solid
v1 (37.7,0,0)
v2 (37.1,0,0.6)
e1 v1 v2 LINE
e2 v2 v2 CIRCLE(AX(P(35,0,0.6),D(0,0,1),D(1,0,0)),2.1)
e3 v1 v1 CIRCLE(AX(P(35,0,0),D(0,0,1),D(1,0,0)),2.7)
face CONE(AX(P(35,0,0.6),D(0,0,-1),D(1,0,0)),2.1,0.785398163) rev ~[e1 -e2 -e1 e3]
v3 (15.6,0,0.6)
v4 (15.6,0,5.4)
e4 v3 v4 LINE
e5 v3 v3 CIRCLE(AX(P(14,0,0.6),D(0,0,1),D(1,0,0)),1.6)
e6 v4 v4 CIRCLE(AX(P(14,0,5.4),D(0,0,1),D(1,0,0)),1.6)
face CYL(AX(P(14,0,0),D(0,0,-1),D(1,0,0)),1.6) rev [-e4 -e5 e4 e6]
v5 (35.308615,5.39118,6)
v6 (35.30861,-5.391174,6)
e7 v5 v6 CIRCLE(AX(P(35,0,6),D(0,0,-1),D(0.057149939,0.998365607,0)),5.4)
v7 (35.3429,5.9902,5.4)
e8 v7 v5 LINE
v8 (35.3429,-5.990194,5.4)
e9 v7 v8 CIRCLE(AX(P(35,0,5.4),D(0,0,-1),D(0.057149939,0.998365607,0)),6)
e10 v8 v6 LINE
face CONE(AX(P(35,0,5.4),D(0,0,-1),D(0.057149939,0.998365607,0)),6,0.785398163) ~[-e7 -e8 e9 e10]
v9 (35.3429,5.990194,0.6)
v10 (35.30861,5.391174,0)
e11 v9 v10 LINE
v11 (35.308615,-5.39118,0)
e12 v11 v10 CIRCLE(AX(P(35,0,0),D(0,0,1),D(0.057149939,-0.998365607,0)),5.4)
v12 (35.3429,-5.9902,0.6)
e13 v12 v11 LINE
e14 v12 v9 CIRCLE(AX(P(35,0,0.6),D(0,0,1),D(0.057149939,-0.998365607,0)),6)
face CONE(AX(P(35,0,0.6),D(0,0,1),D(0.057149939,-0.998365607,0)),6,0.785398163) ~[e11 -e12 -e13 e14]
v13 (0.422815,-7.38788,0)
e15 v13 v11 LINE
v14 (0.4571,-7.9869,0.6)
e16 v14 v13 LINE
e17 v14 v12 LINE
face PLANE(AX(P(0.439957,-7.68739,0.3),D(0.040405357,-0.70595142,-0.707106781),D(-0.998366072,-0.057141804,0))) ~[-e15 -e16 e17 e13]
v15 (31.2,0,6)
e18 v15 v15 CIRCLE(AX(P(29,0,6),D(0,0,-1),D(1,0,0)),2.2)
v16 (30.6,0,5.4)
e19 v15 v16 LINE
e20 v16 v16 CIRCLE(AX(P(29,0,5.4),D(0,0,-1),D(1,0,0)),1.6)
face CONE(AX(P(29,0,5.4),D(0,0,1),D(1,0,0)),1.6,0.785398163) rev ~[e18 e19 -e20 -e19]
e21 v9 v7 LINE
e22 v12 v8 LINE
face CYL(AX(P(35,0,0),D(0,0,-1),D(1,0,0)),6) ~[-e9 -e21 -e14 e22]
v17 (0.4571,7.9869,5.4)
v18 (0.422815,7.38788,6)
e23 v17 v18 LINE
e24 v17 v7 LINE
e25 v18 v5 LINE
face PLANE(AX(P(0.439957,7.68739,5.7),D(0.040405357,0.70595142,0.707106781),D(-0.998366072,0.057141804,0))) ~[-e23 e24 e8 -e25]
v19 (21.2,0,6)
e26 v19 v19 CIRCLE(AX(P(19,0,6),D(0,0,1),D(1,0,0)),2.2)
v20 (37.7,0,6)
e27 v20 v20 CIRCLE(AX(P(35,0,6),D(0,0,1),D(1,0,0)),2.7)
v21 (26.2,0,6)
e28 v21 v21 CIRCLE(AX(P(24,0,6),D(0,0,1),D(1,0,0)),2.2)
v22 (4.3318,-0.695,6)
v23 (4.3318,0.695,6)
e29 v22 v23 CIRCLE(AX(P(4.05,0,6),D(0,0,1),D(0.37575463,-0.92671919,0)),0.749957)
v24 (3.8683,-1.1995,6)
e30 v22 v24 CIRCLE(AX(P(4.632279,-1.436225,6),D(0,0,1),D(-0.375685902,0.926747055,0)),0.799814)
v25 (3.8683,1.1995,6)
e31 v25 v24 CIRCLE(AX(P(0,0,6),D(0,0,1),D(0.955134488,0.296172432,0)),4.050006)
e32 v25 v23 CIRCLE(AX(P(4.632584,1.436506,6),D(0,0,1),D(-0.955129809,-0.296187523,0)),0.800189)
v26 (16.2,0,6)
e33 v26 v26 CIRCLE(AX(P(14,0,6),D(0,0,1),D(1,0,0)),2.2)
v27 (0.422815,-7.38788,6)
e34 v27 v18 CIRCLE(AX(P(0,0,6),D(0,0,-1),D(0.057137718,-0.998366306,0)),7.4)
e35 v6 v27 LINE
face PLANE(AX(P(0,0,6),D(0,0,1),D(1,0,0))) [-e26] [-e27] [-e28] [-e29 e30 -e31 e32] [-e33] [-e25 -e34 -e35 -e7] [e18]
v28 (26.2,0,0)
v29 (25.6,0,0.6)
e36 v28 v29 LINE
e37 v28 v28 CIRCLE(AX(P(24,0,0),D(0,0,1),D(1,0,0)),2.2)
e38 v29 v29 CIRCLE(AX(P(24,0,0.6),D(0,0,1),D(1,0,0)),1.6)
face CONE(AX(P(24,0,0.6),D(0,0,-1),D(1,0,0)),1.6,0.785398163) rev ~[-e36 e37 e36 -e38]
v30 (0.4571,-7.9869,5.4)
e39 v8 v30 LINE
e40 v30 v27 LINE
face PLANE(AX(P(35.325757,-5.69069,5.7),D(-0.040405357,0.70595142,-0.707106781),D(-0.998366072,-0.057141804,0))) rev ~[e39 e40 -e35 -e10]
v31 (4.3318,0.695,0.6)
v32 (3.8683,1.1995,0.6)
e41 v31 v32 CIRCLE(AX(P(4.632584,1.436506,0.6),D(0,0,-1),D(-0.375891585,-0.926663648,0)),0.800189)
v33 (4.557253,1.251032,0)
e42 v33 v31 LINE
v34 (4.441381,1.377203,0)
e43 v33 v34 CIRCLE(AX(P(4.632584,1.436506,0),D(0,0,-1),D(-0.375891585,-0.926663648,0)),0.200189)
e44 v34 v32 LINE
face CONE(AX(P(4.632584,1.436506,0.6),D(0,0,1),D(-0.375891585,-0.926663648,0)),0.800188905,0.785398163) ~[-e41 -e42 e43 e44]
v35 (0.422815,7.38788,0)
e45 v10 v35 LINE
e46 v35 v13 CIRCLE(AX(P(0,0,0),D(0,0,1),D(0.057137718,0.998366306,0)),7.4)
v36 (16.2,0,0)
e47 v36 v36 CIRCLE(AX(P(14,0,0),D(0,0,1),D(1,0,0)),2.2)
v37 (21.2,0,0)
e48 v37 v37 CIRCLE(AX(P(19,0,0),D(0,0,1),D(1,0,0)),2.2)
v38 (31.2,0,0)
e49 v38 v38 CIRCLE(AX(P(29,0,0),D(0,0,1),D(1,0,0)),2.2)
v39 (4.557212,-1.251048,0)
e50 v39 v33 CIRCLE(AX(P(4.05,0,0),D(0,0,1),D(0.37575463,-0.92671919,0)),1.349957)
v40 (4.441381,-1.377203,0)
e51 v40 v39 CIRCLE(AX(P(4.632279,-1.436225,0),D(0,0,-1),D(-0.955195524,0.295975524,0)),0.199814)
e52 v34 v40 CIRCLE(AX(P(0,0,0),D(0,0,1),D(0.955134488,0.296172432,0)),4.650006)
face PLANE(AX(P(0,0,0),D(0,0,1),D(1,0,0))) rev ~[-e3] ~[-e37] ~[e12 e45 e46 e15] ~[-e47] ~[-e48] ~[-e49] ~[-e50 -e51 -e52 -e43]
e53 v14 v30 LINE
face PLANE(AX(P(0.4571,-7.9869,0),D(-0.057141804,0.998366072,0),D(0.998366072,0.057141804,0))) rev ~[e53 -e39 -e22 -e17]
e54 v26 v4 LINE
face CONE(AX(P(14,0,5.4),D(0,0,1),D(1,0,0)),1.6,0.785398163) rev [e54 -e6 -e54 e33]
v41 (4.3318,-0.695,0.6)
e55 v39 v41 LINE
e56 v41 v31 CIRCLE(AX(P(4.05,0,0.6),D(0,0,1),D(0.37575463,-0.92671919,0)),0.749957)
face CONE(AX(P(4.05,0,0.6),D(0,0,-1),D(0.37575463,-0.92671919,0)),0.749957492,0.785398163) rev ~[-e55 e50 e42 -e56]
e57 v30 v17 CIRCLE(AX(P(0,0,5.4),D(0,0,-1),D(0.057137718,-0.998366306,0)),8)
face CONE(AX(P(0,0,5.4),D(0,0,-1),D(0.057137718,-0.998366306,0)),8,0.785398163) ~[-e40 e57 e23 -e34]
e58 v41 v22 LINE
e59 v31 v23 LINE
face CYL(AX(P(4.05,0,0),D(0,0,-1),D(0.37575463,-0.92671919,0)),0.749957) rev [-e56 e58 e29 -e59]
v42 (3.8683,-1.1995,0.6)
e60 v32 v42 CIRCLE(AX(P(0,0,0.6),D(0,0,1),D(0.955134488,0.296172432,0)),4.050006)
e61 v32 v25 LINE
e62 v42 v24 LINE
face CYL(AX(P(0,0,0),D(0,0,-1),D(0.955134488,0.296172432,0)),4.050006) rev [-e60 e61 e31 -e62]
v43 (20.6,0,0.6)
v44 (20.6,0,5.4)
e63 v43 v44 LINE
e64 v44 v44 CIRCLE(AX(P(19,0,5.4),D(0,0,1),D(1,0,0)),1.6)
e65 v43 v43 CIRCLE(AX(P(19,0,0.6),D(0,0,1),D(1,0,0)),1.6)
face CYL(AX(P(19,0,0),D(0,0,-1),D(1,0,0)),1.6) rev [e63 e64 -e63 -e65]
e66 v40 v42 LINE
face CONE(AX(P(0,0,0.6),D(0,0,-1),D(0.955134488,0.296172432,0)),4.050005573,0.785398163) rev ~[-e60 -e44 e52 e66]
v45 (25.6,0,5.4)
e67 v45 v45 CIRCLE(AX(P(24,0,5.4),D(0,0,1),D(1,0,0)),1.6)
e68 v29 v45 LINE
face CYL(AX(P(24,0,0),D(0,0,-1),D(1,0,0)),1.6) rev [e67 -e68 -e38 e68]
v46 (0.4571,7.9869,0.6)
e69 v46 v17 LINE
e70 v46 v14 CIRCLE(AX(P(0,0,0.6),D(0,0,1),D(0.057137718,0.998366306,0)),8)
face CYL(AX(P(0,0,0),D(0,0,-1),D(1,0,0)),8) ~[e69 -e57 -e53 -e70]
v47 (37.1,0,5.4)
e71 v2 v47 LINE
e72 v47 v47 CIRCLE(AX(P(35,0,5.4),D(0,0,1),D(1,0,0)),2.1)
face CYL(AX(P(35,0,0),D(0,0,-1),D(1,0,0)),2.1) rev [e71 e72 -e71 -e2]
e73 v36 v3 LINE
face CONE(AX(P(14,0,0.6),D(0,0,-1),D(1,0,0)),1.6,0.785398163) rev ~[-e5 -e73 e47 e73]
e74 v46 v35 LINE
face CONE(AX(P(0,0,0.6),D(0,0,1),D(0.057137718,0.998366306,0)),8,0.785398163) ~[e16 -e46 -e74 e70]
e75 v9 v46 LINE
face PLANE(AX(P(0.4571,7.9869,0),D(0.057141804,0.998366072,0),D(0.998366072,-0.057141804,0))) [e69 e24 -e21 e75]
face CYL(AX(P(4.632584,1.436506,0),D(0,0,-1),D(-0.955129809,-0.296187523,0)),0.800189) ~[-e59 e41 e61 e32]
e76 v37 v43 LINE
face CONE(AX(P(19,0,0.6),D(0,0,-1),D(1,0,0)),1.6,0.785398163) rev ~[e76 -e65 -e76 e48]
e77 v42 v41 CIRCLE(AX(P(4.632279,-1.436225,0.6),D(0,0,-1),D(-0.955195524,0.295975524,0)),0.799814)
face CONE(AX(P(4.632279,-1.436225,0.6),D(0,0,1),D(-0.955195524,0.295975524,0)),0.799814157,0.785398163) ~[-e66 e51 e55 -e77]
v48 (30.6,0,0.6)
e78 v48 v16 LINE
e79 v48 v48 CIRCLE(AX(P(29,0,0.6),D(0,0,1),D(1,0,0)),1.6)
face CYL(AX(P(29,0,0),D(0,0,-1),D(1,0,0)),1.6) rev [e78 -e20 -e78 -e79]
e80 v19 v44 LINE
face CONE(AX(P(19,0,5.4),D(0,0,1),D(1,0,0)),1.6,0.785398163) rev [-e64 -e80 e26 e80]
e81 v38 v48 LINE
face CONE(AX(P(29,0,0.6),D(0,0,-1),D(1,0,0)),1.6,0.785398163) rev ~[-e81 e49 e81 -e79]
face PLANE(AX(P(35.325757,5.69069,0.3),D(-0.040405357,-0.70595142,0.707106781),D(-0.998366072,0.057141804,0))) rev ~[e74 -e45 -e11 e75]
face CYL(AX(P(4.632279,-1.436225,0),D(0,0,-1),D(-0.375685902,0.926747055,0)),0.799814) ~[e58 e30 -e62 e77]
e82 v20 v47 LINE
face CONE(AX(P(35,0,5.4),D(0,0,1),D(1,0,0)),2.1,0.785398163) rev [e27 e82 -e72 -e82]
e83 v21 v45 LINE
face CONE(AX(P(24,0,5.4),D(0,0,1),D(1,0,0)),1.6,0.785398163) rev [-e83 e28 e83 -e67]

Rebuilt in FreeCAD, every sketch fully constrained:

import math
import FreeCAD as App
import Part
import Sketcher
Q = App.Units.Quantity


def edges_at(feature, points):
    """Names of the edges that pass closest to the given points."""
    edges = feature.Shape.Edges
    near = lambda p: min(range(len(edges)), key=lambda i: edges[i].distToShape(Part.Vertex(*p))[0])
    return sorted({f"Edge{near(p) + 1}" for p in points})

doc = App.newDocument("Part")
body = doc.addObject("PartDesign::Body", "Body")

# Sketch on XY plane
sketch1 = body.newObject("Sketcher::SketchObject", "Sketch")
sketch1.AttachmentSupport = (doc.getObject("XY_Plane"), [""])
sketch1.MapMode = "FlatFace"
sketch1.addGeometry([
    Part.ArcOfCircle(Part.Circle(App.Vector(0, 0, 0), App.Vector(0, 0, 1), 8), math.radians(87), math.radians(273)),  # 0
    Part.LineSegment(App.Vector(0.5, -8, 0), App.Vector(35.3, -6, 0)),  # 1
    Part.ArcOfCircle(Part.Circle(App.Vector(35, 0, 0), App.Vector(0, 0, 1), 6), math.radians(-87), math.radians(87)),  # 2
    Part.LineSegment(App.Vector(35.3, 6, 0), App.Vector(0.5, 8, 0)),  # 3
    Part.ArcOfCircle(Part.Circle(App.Vector(0, 0, 0), App.Vector(0, 0, 1), 4.1), math.radians(17), math.radians(343)),  # 4
    Part.ArcOfCircle(Part.Circle(App.Vector(4.6, 1.4, 0), App.Vector(0, 0, 1), 0.8), math.radians(-163), math.radians(-112)),  # 5
    Part.ArcOfCircle(Part.Circle(App.Vector(4, 0, 0), App.Vector(0, 0, 1), 0.7), math.radians(-68), math.radians(68)),  # 6
    Part.ArcOfCircle(Part.Circle(App.Vector(4.6, -1.4, 0), App.Vector(0, 0, 1), 0.8), math.radians(112), math.radians(163)),  # 7
    Part.Circle(App.Vector(19, 0, 0), App.Vector(0, 0, 1), 1.6),  # 8
    Part.Circle(App.Vector(29, 0, 0), App.Vector(0, 0, 1), 1.6),  # 9
    Part.Circle(App.Vector(24, 0, 0), App.Vector(0, 0, 1), 1.6),  # 10
    Part.Circle(App.Vector(14, 0, 0), App.Vector(0, 0, 1), 1.6),  # 11
    Part.Circle(App.Vector(35, 0, 0), App.Vector(0, 0, 1), 2.1),  # 12
], False)
sketch1.addConstraint([
    Sketcher.Constraint("Tangent", 0, 2, 1, 1),
    Sketcher.Constraint("Tangent", 1, 2, 2, 1),
    Sketcher.Constraint("Tangent", 2, 2, 3, 1),
    Sketcher.Constraint("Tangent", 3, 2, 0, 1),
    Sketcher.Constraint("Tangent", 4, 1, 5, 1),
    Sketcher.Constraint("Tangent", 5, 2, 6, 2),
    Sketcher.Constraint("Tangent", 6, 1, 7, 1),
    Sketcher.Constraint("Tangent", 7, 2, 4, 2),
    Sketcher.Constraint("Coincident", 0, 3, -1, 1),
    Sketcher.Constraint("Coincident", 4, 3, -1, 1),
    Sketcher.Constraint("Coincident", 12, 3, 2, 3),
    Sketcher.Constraint("Equal", 5, 7),
    Sketcher.Constraint("Equal", 8, 9),
    Sketcher.Constraint("Equal", 9, 10),
    Sketcher.Constraint("Equal", 10, 11),
    Sketcher.Constraint("PointOnObject", 2, 3, -1),
    Sketcher.Constraint("PointOnObject", 6, 3, -1),
    Sketcher.Constraint("PointOnObject", 8, 3, -1),
    Sketcher.Constraint("PointOnObject", 9, 3, -1),
    Sketcher.Constraint("PointOnObject", 10, 3, -1),
    Sketcher.Constraint("PointOnObject", 11, 3, -1),
    Sketcher.Constraint("Radius", 0, Q("8 mm")),
    Sketcher.Constraint("Radius", 2, Q("6 mm")),
    Sketcher.Constraint("Diameter", 8, Q("3.2 mm")),
    Sketcher.Constraint("Diameter", 12, Q("4.2 mm")),
    Sketcher.Constraint("Radius", 5, Q("0.8 mm")),
    Sketcher.Constraint("Radius", 4, Q("4.05 mm")),
    Sketcher.Constraint("Radius", 6, Q("0.75 mm")),
    Sketcher.Constraint("DistanceX", -1, 1, 2, 3, Q("35 mm")),
    Sketcher.Constraint("DistanceX", -1, 1, 11, 3, Q("14 mm")),
    Sketcher.Constraint("DistanceX", 8, 3, 2, 3, Q("16 mm")),
    Sketcher.Constraint("DistanceX", 8, 3, 9, 3, Q("10 mm")),
    Sketcher.Constraint("DistanceX", 8, 3, 10, 3, Q("5 mm")),
    Sketcher.Constraint("DistanceX", -1, 1, 6, 3, Q("4.05 mm")),
])
pad1 = body.newObject("PartDesign::Pad", "Pad")
pad1.Profile = sketch1
pad1.Length = 6
doc.recompute()

chamfer = body.newObject("PartDesign::Chamfer", "Chamfer")
chamfer.Base = (pad1, edges_at(pad1, [
    (17.9, -6.989, 0),
    (41, 0, 0),
    (17.9, 6.989, 0),
    (-8, 0, 0),
    (12.4, 0, 0),
    (32.9, 0, 0),
    (17.9, 6.989, 6),
    (-8, 0, 6),
    (17.9, -6.989, 6),
    (41, 0, 6),
    (12.4, 0, 6),
    (32.9, 0, 6),
    (17.4, 0, 6),
    (22.4, 0, 6),
    (27.4, 0, 6),
    (27.4, 0, 0),
    (22.4, 0, 0),
    (17.4, 0, 0),
    (-4.05, 0, 0),
    (4.043, 0.895, 0),
    (4.8, 0, 0),
    (4.043, -0.895, 0),
]))
chamfer.Size = 0.6

doc.recompute()
